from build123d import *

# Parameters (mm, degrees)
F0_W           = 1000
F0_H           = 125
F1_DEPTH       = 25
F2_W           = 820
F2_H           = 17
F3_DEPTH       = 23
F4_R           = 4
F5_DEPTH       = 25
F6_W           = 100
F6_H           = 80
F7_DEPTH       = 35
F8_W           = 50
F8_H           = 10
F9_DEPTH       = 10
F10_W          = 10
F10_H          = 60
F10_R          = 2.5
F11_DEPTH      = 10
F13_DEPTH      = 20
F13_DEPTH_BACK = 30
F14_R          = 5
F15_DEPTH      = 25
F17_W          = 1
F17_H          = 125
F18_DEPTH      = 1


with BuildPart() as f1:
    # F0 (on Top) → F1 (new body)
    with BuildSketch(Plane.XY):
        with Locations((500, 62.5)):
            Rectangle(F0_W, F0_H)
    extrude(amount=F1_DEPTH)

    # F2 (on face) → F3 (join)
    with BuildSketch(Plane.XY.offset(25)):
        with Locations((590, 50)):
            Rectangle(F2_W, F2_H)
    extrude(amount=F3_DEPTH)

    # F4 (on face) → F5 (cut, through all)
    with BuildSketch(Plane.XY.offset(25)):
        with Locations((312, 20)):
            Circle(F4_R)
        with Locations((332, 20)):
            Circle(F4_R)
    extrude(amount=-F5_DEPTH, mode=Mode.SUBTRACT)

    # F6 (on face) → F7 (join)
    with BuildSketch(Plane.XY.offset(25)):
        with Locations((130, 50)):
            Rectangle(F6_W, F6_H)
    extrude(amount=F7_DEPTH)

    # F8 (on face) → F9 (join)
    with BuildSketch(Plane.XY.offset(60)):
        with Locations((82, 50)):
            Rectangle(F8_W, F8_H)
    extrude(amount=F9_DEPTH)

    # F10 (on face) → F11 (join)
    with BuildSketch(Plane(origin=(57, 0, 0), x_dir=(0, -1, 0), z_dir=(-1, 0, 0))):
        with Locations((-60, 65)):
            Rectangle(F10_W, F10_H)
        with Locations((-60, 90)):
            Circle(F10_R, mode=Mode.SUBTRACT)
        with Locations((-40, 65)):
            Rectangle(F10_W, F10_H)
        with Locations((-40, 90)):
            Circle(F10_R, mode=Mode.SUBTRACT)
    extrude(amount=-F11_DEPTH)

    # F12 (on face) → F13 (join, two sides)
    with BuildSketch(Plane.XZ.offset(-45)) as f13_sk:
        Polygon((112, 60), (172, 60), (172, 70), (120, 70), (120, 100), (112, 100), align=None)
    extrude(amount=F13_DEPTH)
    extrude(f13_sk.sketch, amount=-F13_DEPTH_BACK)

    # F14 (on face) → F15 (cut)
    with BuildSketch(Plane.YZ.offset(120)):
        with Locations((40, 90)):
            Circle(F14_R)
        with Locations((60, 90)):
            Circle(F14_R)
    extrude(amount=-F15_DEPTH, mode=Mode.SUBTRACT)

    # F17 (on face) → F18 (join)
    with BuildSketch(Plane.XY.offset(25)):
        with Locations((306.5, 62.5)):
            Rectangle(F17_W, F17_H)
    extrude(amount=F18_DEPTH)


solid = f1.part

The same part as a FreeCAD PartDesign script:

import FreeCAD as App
import Part
import Sketcher


def add_polygon(sketch, points):
    """Adds a closed chain of lines whose ends are joined by coincident constraints."""
    first, n = sketch.GeometryCount, len(points)
    for a, b in zip(points, points[1:] + points[:1]):
        sketch.addGeometry(Part.LineSegment(App.Vector(*a, 0), App.Vector(*b, 0)), False)
    for i in range(n):
        sketch.addConstraint(Sketcher.Constraint("Coincident", first + i, 2, first + (i + 1) % n, 1))

doc = App.newDocument("Part")
body = doc.addObject("PartDesign::Body", "Body")

sketch1 = doc.addObject("Sketcher::SketchObject", "Sketch")
body.addObject(sketch1)
sketch1.AttachmentSupport = (doc.XY_Plane, [""])
sketch1.MapMode = "FlatFace"
add_polygon(sketch1, [(0, 125), (0, 0), (1000, 0), (1000, 125)])
sketch1.addConstraint(Sketcher.Constraint("Vertical", 0))
sketch1.addConstraint(Sketcher.Constraint("Horizontal", 1))
sketch1.addConstraint(Sketcher.Constraint("Vertical", 2))
sketch1.addConstraint(Sketcher.Constraint("Horizontal", 3))
sketch1.addConstraint(Sketcher.Constraint("Coincident", 0, 2, -1, 1))
sketch1.addConstraint(Sketcher.Constraint("DistanceX", 1, 1, 1, 2, 1000.0))
sketch1.addConstraint(Sketcher.Constraint("DistanceY", 0, 2, 0, 1, 125.0))
pad1 = doc.addObject("PartDesign::Pad", "Pad")
body.addObject(pad1)
pad1.Profile = sketch1
pad1.Length = 25

sketch2 = doc.addObject("Sketcher::SketchObject", "Sketch001")
body.addObject(sketch2)
sketch2.AttachmentSupport = (doc.XY_Plane, [""])
sketch2.MapMode = "FlatFace"
sketch2.AttachmentOffset = App.Placement(App.Vector(0, 0, 25), App.Rotation())
add_polygon(sketch2, [(180, 58), (180, 42), (1000, 42), (1000, 58)])
sketch2.addConstraint(Sketcher.Constraint("Vertical", 0))
sketch2.addConstraint(Sketcher.Constraint("Horizontal", 1))
sketch2.addConstraint(Sketcher.Constraint("Vertical", 2))
sketch2.addConstraint(Sketcher.Constraint("Horizontal", 3))
sketch2.addConstraint(Sketcher.Constraint("DistanceX", 1, 1, 1, 2, 820.0))
sketch2.addConstraint(Sketcher.Constraint("DistanceY", 0, 2, 0, 1, 17.0))
sketch2.addConstraint(Sketcher.Constraint("DistanceX", -1, 1, 0, 2, 180.0))
sketch2.addConstraint(Sketcher.Constraint("DistanceY", -1, 1, 0, 2, 41.5))
pad2 = doc.addObject("PartDesign::Pad", "Pad001")
body.addObject(pad2)
pad2.Profile = sketch2
pad2.Length = 23

sketch3 = doc.addObject("Sketcher::SketchObject", "Sketch002")
body.addObject(sketch3)
sketch3.AttachmentSupport = (doc.XY_Plane, [""])
sketch3.MapMode = "FlatFace"
sketch3.AttachmentOffset = App.Placement(App.Vector(0, 0, 25), App.Rotation())
sketch3.addGeometry(Part.Circle(App.Vector(312, 20, 0), App.Vector(0, 0, 1), 4), False)
sketch3.addGeometry(Part.Circle(App.Vector(332, 20, 0), App.Vector(0, 0, 1), 4), False)
sketch3.addConstraint(Sketcher.Constraint("Equal", 0, 1))
sketch3.addConstraint(Sketcher.Constraint("Horizontal", 0, 3, 1, 3))
sketch3.addConstraint(Sketcher.Constraint("Diameter", 0, 8.0))
sketch3.addConstraint(Sketcher.Constraint("DistanceX", -1, 1, 0, 3, 312.0))
sketch3.addConstraint(Sketcher.Constraint("DistanceY", -1, 1, 0, 3, 20.0))
sketch3.addConstraint(Sketcher.Constraint("DistanceX", -1, 1, 1, 3, 332.0))
pocket1 = doc.addObject("PartDesign::Pocket", "Pocket")
body.addObject(pocket1)
pocket1.Profile = sketch3
pocket1.Type = "ThroughAll"

sketch4 = doc.addObject("Sketcher::SketchObject", "Sketch003")
body.addObject(sketch4)
sketch4.AttachmentSupport = (doc.XY_Plane, [""])
sketch4.MapMode = "FlatFace"
sketch4.AttachmentOffset = App.Placement(App.Vector(0, 0, 25), App.Rotation())
add_polygon(sketch4, [(80, 90), (80, 10), (180, 10), (180, 90)])
sketch4.addConstraint(Sketcher.Constraint("Vertical", 0))
sketch4.addConstraint(Sketcher.Constraint("Horizontal", 1))
sketch4.addConstraint(Sketcher.Constraint("Vertical", 2))
sketch4.addConstraint(Sketcher.Constraint("Horizontal", 3))
sketch4.addConstraint(Sketcher.Constraint("DistanceX", 1, 1, 1, 2, 100.0))
sketch4.addConstraint(Sketcher.Constraint("DistanceY", 0, 2, 0, 1, 80.0))
sketch4.addConstraint(Sketcher.Constraint("DistanceX", -1, 1, 0, 2, 80.0))
sketch4.addConstraint(Sketcher.Constraint("DistanceY", -1, 1, 0, 2, 10.0))
pad3 = doc.addObject("PartDesign::Pad", "Pad002")
body.addObject(pad3)
pad3.Profile = sketch4
pad3.Length = 35

sketch5 = doc.addObject("Sketcher::SketchObject", "Sketch004")
body.addObject(sketch5)
sketch5.AttachmentSupport = (doc.XY_Plane, [""])
sketch5.MapMode = "FlatFace"
sketch5.AttachmentOffset = App.Placement(App.Vector(0, 0, 60), App.Rotation())
add_polygon(sketch5, [(57, 55), (57, 45), (107, 45), (107, 55)])
sketch5.addConstraint(Sketcher.Constraint("Vertical", 0))
sketch5.addConstraint(Sketcher.Constraint("Horizontal", 1))
sketch5.addConstraint(Sketcher.Constraint("Vertical", 2))
sketch5.addConstraint(Sketcher.Constraint("Horizontal", 3))
sketch5.addConstraint(Sketcher.Constraint("DistanceX", 1, 1, 1, 2, 50.0))
sketch5.addConstraint(Sketcher.Constraint("DistanceY", 0, 2, 0, 1, 10.0))
sketch5.addConstraint(Sketcher.Constraint("DistanceX", -1, 1, 0, 2, 57.0))
sketch5.addConstraint(Sketcher.Constraint("DistanceY", -1, 1, 0, 2, 45.0))
pad4 = doc.addObject("PartDesign::Pad", "Pad003")
body.addObject(pad4)
pad4.Profile = sketch5
pad4.Length = 10

sketch6 = doc.addObject("Sketcher::SketchObject", "Sketch005")
body.addObject(sketch6)
sketch6.AttachmentSupport = (doc.YZ_Plane, [""])
sketch6.MapMode = "FlatFace"
sketch6.AttachmentOffset = App.Placement(App.Vector(0, 0, 57), App.Rotation())
add_polygon(sketch6, [(65, 95), (65, 35), (55, 35), (55, 95)])
sketch6.addGeometry(Part.Circle(App.Vector(60, 90, 0), App.Vector(0, 0, 1), 2.5), False)
add_polygon(sketch6, [(45, 95), (45, 35), (35, 35), (35, 95)])
sketch6.addGeometry(Part.Circle(App.Vector(40, 90, 0), App.Vector(0, 0, 1), 2.5), False)
sketch6.addConstraint(Sketcher.Constraint("Vertical", 0))
sketch6.addConstraint(Sketcher.Constraint("Horizontal", 1))
sketch6.addConstraint(Sketcher.Constraint("Vertical", 2))
sketch6.addConstraint(Sketcher.Constraint("Horizontal", 3))
sketch6.addConstraint(Sketcher.Constraint("Vertical", 5))
sketch6.addConstraint(Sketcher.Constraint("Horizontal", 6))
sketch6.addConstraint(Sketcher.Constraint("Vertical", 7))
sketch6.addConstraint(Sketcher.Constraint("Horizontal", 8))
sketch6.addConstraint(Sketcher.Constraint("Equal", 4, 9))
sketch6.addConstraint(Sketcher.Constraint("Horizontal", 4, 3, 9, 3))
sketch6.addConstraint(Sketcher.Constraint("Horizontal", 1, 2, 5, 2))
sketch6.addConstraint(Sketcher.Constraint("Horizontal", 3, 2, 7, 2))
sketch6.addConstraint(Sketcher.Constraint("Equal", 3, 6))
sketch6.addConstraint(Sketcher.Constraint("Diameter", 4, 5.0))
sketch6.addConstraint(Sketcher.Constraint("DistanceX", 1, 2, 1, 1, 10.0))
sketch6.addConstraint(Sketcher.Constraint("DistanceY", 0, 2, 0, 1, 60.0))
sketch6.addConstraint(Sketcher.Constraint("DistanceX", -1, 1, 4, 3, 60.0))
sketch6.addConstraint(Sketcher.Constraint("DistanceY", -1, 1, 4, 3, 90.0))
sketch6.addConstraint(Sketcher.Constraint("DistanceX", -1, 1, 9, 3, 40.0))
sketch6.addConstraint(Sketcher.Constraint("DistanceX", -1, 1, 0, 2, 65.0))
sketch6.addConstraint(Sketcher.Constraint("DistanceY", -1, 1, 0, 2, 35.0))
sketch6.addConstraint(Sketcher.Constraint("DistanceX", -1, 1, 5, 2, 45.0))
pad5 = doc.addObject("PartDesign::Pad", "Pad004")
body.addObject(pad5)
pad5.Profile = sketch6
pad5.Length = 10

sketch7 = doc.addObject("Sketcher::SketchObject", "Sketch006")
body.addObject(sketch7)
sketch7.AttachmentSupport = (doc.XZ_Plane, [""])
sketch7.MapMode = "FlatFace"
sketch7.AttachmentOffset = App.Placement(App.Vector(0, 0, -45), App.Rotation())
add_polygon(sketch7, [(112, 60), (172, 60), (172, 70), (120, 70), (120, 100), (112, 100)])
sketch7.addConstraint(Sketcher.Constraint("Horizontal", 0))
sketch7.addConstraint(Sketcher.Constraint("Vertical", 1))
sketch7.addConstraint(Sketcher.Constraint("Horizontal", 2))
sketch7.addConstraint(Sketcher.Constraint("Vertical", 3))
sketch7.addConstraint(Sketcher.Constraint("Horizontal", 4))
sketch7.addConstraint(Sketcher.Constraint("Vertical", 5))
sketch7.addConstraint(Sketcher.Constraint("DistanceX", 0, 1, 0, 2, 60.0))
sketch7.addConstraint(Sketcher.Constraint("DistanceX", 2, 2, 2, 1, 52.0))
sketch7.addConstraint(Sketcher.Constraint("DistanceY", 1, 1, 1, 2, 10.0))
sketch7.addConstraint(Sketcher.Constraint("DistanceY", 3, 1, 3, 2, 30.0))
sketch7.addConstraint(Sketcher.Constraint("DistanceX", -1, 1, 0, 2, 172.0))
sketch7.addConstraint(Sketcher.Constraint("DistanceY", -1, 1, 0, 2, 60.0))
pad6 = doc.addObject("PartDesign::Pad", "Pad005")
body.addObject(pad6)
pad6.Profile = sketch7
pad6.Type = "TwoLengths"
pad6.Length = 20
pad6.Length2 = 30

sketch8 = doc.addObject("Sketcher::SketchObject", "Sketch007")
body.addObject(sketch8)
sketch8.AttachmentSupport = (doc.YZ_Plane, [""])
sketch8.MapMode = "FlatFace"
sketch8.AttachmentOffset = App.Placement(App.Vector(0, 0, 120), App.Rotation())
sketch8.addGeometry(Part.Circle(App.Vector(40, 90, 0), App.Vector(0, 0, 1), 5), False)
sketch8.addGeometry(Part.Circle(App.Vector(60, 90, 0), App.Vector(0, 0, 1), 5), False)
sketch8.addConstraint(Sketcher.Constraint("Equal", 0, 1))
sketch8.addConstraint(Sketcher.Constraint("Horizontal", 0, 3, 1, 3))
sketch8.addConstraint(Sketcher.Constraint("Diameter", 0, 10.0))
sketch8.addConstraint(Sketcher.Constraint("DistanceX", -1, 1, 0, 3, 40.0))
sketch8.addConstraint(Sketcher.Constraint("DistanceY", -1, 1, 0, 3, 90.0))
sketch8.addConstraint(Sketcher.Constraint("DistanceX", -1, 1, 1, 3, 60.0))
pocket2 = doc.addObject("PartDesign::Pocket", "Pocket001")
body.addObject(pocket2)
pocket2.Profile = sketch8
pocket2.Length = 25

sketch9 = doc.addObject("Sketcher::SketchObject", "Sketch008")
body.addObject(sketch9)
sketch9.AttachmentSupport = (doc.XY_Plane, [""])
sketch9.MapMode = "FlatFace"
sketch9.AttachmentOffset = App.Placement(App.Vector(0, 0, 25), App.Rotation())
add_polygon(sketch9, [(306, 125), (306, 0), (307, 0), (307, 125)])
sketch9.addConstraint(Sketcher.Constraint("Vertical", 0))
sketch9.addConstraint(Sketcher.Constraint("Horizontal", 1))
sketch9.addConstraint(Sketcher.Constraint("Vertical", 2))
sketch9.addConstraint(Sketcher.Constraint("Horizontal", 3))
sketch9.addConstraint(Sketcher.Constraint("PointOnObject", 0, 2, -1))
sketch9.addConstraint(Sketcher.Constraint("DistanceX", 1, 1, 1, 2, 1.0))
sketch9.addConstraint(Sketcher.Constraint("DistanceY", 0, 2, 0, 1, 125.0))
sketch9.addConstraint(Sketcher.Constraint("DistanceX", -1, 1, 0, 2, 306.0))
pad7 = doc.addObject("PartDesign::Pad", "Pad006")
body.addObject(pad7)
pad7.Profile = sketch9
pad7.Length = 1

doc.recompute()
